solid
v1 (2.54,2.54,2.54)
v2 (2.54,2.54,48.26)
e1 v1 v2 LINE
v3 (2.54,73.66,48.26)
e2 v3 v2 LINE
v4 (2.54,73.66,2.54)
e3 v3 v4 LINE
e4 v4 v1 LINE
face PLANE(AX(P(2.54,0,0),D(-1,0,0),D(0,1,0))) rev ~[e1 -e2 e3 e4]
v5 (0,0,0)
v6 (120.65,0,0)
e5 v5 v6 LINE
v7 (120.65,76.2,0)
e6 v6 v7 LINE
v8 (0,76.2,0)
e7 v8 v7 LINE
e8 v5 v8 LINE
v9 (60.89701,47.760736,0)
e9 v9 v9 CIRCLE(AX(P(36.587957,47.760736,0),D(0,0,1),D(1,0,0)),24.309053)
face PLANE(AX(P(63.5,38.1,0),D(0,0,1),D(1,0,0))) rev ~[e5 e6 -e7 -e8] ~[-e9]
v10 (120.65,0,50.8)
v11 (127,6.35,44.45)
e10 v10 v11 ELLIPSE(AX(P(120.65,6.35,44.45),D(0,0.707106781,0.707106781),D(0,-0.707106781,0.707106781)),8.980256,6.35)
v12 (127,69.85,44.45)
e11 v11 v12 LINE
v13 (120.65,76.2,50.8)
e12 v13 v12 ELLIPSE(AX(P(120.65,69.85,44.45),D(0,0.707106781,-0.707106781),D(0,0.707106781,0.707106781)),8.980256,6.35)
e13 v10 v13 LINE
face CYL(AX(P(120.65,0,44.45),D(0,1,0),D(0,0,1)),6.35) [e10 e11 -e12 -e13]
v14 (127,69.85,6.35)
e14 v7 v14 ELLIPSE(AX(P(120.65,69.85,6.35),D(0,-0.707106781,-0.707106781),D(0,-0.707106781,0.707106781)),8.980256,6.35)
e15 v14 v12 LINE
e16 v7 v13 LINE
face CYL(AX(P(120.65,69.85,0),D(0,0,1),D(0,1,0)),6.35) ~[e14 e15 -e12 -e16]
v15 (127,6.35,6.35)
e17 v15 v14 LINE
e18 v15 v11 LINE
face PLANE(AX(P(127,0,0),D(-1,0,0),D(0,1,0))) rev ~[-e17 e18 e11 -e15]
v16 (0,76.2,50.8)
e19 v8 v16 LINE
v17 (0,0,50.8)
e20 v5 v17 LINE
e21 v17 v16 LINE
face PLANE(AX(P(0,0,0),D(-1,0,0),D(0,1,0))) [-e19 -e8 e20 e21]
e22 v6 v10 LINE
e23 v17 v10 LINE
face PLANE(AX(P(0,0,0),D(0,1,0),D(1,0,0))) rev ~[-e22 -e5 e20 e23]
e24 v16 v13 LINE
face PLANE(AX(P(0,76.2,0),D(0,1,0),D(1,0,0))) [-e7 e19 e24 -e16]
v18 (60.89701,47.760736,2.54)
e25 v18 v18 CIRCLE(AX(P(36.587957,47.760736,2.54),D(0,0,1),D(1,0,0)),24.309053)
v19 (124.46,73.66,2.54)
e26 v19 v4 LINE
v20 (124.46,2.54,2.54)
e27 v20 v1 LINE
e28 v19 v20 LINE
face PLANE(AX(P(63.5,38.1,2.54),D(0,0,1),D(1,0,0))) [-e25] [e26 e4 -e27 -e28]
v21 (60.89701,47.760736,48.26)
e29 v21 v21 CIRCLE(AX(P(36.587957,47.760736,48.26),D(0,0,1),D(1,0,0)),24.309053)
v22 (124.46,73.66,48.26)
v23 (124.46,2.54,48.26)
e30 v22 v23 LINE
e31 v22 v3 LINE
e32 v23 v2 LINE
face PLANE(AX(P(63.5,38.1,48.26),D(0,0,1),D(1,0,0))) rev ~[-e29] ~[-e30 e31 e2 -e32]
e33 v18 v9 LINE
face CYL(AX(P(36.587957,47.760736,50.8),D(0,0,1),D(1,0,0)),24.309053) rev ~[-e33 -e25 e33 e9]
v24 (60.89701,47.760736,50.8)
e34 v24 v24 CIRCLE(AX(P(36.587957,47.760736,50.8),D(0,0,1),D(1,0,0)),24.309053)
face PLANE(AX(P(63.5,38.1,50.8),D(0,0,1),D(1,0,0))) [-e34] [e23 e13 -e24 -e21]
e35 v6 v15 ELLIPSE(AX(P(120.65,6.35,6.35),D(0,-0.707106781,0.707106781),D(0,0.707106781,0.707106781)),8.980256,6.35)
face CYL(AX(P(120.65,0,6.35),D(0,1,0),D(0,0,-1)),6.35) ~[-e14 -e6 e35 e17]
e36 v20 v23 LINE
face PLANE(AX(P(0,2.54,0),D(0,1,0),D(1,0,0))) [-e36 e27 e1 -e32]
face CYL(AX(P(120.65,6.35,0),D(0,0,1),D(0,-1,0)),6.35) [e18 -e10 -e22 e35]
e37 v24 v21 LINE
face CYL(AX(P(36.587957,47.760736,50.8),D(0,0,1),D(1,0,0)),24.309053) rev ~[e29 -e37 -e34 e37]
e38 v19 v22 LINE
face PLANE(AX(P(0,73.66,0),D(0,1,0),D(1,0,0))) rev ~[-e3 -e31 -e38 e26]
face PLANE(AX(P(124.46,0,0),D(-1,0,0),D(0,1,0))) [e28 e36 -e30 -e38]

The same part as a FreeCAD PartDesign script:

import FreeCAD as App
import Part
import Sketcher
from FreeCAD import Vector
Q = App.Units.Quantity


def edges_at(feature, points):
    """Names of the edges that pass closest to the given points."""
    edges = feature.Shape.Edges
    near = lambda p: min(range(len(edges)), key=lambda i: edges[i].distToShape(Part.Vertex(*p))[0])
    return sorted({f"Edge{near(p) + 1}" for p in points})


def faces_at(feature, points):
    """Names of the faces that lie closest to the given points."""
    faces = feature.Shape.Faces
    near = lambda p: min(range(len(faces)), key=lambda i: faces[i].distToShape(Part.Vertex(*p))[0])
    return sorted({f"Face{near(p) + 1}" for p in points})


def add_polygon(sketch, points):
    """Adds a closed chain of lines whose ends are joined by coincident constraints."""
    first, n = sketch.GeometryCount, len(points)
    for a, b in zip(points, points[1:] + points[:1]):
        sketch.addGeometry(Part.LineSegment(App.Vector(*a, 0), App.Vector(*b, 0)), False)
    for i in range(n):
        sketch.addConstraint(Sketcher.Constraint("Coincident", first + i, 2, first + (i + 1) % n, 1))

doc = App.newDocument("Part")
body = doc.addObject("PartDesign::Body", "Body")

# Sketch on XY plane
sketch1 = body.newObject("Sketcher::SketchObject", "Sketch")
sketch1.AttachmentSupport = (doc.getObject("XY_Plane"), [""])
sketch1.MapMode = "FlatFace"
add_polygon(sketch1, [(0, 76), (0, 0), (127, 0), (127, 76)])  # lines 0-3
sketch1.addConstraint([
    Sketcher.Constraint("Vertical", 0),
    Sketcher.Constraint("Horizontal", 1),
    Sketcher.Constraint("Vertical", 2),
    Sketcher.Constraint("Horizontal", 3),
    Sketcher.Constraint("Coincident", 0, 2, -1, 1),
    Sketcher.Constraint("DistanceX", 1, 1, 1, 2, Q("5 in")),
    Sketcher.Constraint("DistanceY", 0, 2, 0, 1, Q("3 in")),
])
pad1 = body.newObject("PartDesign::Pad", "Pad")
pad1.Profile = sketch1
pad1.Length = Q("2 in")

# Sketch on XY plane
sketch2 = body.newObject("Sketcher::SketchObject", "Sketch001")
sketch2.AttachmentSupport = (doc.getObject("XY_Plane"), [""])
sketch2.MapMode = "FlatFace"
sketch2.AttachmentOffset = App.Placement(Vector(0, 0, 2 * 25.4), App.Rotation())
sketch2.addGeometry(Part.Circle(Vector(37, 48, 0), Vector(0, 0, 1), 24), False)
sketch2.addConstraint([
    Sketcher.Constraint("Diameter", 0, Q("48.618106 mm")),
    Sketcher.Constraint("DistanceX", -1, 1, 0, 3, Q("36.587957 mm")),
    Sketcher.Constraint("DistanceY", -1, 1, 0, 3, Q("47.760736 mm")),
])
pocket1 = body.newObject("PartDesign::Pocket", "Pocket")
pocket1.Profile = sketch2
pocket1.Type = "ThroughAll"
doc.recompute()

thickness = body.newObject("PartDesign::Thickness", "Thickness")
thickness.Base = (pocket1, faces_at(pocket1, [(12.279, 47.761, 25.4)]))
thickness.Value = Q("0.1 in")
thickness.Reversed = True
thickness.Join = "Arc"
doc.recompute()

fillet = body.newObject("PartDesign::Fillet", "Fillet")
fillet.Base = (thickness, edges_at(thickness, [
    (127, 76.2, 25.4),
    (127, 38.1, 0),
    (127, 0, 25.4),
    (127, 38.1, 50.8),
]))
fillet.Radius = Q("0.25 in")

doc.recompute()
